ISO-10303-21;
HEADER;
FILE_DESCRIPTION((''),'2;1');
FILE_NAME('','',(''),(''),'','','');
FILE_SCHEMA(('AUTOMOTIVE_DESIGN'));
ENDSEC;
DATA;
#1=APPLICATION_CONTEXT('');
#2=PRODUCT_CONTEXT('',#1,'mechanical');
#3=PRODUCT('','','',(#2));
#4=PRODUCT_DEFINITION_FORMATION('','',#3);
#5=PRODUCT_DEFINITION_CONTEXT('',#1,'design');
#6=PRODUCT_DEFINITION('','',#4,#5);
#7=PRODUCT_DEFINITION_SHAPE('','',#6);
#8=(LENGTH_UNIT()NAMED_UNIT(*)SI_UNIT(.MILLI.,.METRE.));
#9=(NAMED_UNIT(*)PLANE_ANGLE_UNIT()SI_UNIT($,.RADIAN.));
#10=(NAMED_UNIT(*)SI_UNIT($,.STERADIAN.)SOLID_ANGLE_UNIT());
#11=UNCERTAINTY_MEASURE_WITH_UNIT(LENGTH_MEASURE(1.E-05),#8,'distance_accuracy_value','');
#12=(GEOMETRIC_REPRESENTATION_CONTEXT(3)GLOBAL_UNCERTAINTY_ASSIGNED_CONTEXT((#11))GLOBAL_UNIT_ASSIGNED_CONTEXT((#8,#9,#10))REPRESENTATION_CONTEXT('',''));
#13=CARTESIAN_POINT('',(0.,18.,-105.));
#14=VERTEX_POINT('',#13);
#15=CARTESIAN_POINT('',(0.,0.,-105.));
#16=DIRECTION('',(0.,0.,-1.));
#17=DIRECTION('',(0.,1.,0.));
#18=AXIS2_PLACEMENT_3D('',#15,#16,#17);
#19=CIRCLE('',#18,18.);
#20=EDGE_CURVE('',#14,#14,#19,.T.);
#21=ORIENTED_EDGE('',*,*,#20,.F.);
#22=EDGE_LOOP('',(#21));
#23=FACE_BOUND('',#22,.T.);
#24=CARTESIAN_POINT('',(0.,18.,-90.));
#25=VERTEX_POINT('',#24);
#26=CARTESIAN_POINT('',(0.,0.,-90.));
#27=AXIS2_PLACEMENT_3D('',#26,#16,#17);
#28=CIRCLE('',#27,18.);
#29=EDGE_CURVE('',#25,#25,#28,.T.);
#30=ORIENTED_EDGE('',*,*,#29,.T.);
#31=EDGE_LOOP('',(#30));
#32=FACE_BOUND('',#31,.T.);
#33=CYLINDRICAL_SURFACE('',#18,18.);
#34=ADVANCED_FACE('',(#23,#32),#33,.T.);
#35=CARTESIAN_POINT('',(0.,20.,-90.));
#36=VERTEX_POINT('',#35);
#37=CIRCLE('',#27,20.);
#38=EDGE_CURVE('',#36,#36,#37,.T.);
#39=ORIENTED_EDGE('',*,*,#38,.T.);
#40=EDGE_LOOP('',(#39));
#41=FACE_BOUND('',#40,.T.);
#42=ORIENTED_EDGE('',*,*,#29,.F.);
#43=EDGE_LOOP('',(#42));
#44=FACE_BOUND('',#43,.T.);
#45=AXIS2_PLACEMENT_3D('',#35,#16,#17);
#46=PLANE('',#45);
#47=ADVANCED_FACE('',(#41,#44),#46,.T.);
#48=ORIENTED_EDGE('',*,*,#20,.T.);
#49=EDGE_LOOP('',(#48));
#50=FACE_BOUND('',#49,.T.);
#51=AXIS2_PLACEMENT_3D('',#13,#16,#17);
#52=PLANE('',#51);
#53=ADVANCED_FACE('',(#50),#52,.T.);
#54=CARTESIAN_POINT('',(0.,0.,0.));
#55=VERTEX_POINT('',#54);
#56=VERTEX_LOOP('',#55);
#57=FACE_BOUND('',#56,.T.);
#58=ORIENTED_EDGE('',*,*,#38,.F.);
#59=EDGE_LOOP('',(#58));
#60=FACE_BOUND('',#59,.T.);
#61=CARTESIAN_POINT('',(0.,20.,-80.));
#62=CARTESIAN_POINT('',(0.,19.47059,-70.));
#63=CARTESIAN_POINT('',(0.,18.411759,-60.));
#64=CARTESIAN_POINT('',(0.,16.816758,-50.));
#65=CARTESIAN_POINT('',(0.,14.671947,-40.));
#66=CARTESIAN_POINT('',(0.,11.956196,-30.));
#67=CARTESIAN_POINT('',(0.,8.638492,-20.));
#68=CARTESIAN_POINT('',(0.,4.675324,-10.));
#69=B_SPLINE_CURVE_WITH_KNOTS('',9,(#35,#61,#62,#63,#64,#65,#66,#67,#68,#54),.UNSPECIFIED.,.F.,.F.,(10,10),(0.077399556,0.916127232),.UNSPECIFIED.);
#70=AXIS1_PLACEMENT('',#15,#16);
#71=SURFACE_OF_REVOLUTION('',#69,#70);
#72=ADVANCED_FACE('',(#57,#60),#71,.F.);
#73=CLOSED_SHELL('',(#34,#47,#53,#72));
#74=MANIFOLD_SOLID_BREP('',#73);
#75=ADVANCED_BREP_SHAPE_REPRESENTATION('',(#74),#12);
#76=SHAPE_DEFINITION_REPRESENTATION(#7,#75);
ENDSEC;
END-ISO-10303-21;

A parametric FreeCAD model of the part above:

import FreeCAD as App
import Part
import Sketcher

doc = App.newDocument("Part")
body = doc.addObject("PartDesign::Body", "Body")

sketch1 = doc.addObject("Sketcher::SketchObject", "Sketch")
body.addObject(sketch1)
sketch1.AttachmentSupport = (doc.YZ_Plane, [""])
sketch1.MapMode = "FlatFace"
sketch1.addGeometry([
    Part.LineSegment(App.Vector(18, -90, 0), App.Vector(20, -90, 0)),
    Part.BSplineCurve([App.Vector(0, 0, 0), App.Vector(4.675324, -10, 0), App.Vector(8.638492, -20, 0), App.Vector(11.956196, -30, 0), App.Vector(14.671947, -40, 0), App.Vector(16.816758, -50, 0), App.Vector(18.411759, -60, 0), App.Vector(19.47059, -70, 0), App.Vector(20, -80, 0), App.Vector(20, -90, 0)], [10, 10], [0.077399556, 0.916127232], False, 9, [1, 1, 1, 1, 1, 1, 1, 1, 1, 1], False),
    Part.LineSegment(App.Vector(0, 0, 0), App.Vector(0, -105, 0)),
    Part.LineSegment(App.Vector(0, -105, 0), App.Vector(18, -105, 0)),
    Part.LineSegment(App.Vector(18, -105, 0), App.Vector(18, -90, 0)),
], False)
sketch1.addConstraint([
    Sketcher.Constraint("Block", 1),
    Sketcher.Constraint("Coincident", 0, 2, 1, 2),
    Sketcher.Constraint("Coincident", 1, 1, 2, 1),
    Sketcher.Constraint("Coincident", 2, 2, 3, 1),
    Sketcher.Constraint("Coincident", 3, 2, 4, 1),
    Sketcher.Constraint("Coincident", 4, 2, 0, 1),
    Sketcher.Constraint("Horizontal", 0),
    Sketcher.Constraint("Vertical", 2),
    Sketcher.Constraint("Horizontal", 3),
    Sketcher.Constraint("Vertical", 4),
    Sketcher.Constraint("DistanceX", 0, 1, 0, 2, 2.0),
    Sketcher.Constraint("DistanceY", 2, 2, 2, 1, 105.0),
])
revolution = doc.addObject("PartDesign::Revolution", "Revolution")
body.addObject(revolution)
revolution.Profile = sketch1
revolution.ReferenceAxis = (sketch1, ["V_Axis"])
revolution.Angle = 360

doc.recompute()
